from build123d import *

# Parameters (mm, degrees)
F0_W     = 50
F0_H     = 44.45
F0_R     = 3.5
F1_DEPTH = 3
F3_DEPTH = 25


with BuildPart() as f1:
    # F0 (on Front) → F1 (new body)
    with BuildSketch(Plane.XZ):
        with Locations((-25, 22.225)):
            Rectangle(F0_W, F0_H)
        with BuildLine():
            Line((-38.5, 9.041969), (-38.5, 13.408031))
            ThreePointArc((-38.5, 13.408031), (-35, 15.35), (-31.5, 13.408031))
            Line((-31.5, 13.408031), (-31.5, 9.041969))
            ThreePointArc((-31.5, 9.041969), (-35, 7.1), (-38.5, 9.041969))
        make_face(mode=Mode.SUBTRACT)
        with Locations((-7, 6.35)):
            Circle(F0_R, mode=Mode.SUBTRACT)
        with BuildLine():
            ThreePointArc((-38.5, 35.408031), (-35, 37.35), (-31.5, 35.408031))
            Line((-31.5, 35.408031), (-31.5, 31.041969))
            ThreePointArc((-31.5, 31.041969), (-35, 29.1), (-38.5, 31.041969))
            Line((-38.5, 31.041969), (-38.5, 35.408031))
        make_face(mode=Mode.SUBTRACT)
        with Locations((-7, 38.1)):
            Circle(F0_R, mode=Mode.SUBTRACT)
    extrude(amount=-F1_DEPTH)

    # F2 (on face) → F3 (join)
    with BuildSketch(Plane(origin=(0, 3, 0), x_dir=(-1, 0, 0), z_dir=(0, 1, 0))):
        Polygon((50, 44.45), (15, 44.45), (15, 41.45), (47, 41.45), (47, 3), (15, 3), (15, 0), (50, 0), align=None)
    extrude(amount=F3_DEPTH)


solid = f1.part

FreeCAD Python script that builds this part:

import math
import FreeCAD as App
import Part
import Sketcher

V = App.Vector
Q = App.Units.Quantity


def add_polygon(sketch, points):
    """Adds a closed chain of lines whose ends are joined by coincident constraints."""
    first, n = sketch.GeometryCount, len(points)
    for a, b in zip(points, points[1:] + points[:1]):
        sketch.addGeometry(Part.LineSegment(App.Vector(*a, 0), App.Vector(*b, 0)), False)
    for i in range(n):
        sketch.addConstraint(Sketcher.Constraint("Coincident", first + i, 2, first + (i + 1) % n, 1))

doc = App.newDocument("Part")
body = doc.addObject("PartDesign::Body", "Body")

sketch1 = doc.addObject("Sketcher::SketchObject", "Sketch")
body.addObject(sketch1)
sketch1.AttachmentSupport = (doc.XZ_Plane, [""])
sketch1.MapMode = "FlatFace"
add_polygon(sketch1, [(-50, 44.45), (-50, 0), (0, 0), (0, 44.45)])
sketch1.addGeometry(Part.ArcOfCircle(Part.Circle(V(-35, 11.225, 0), V(0, 0, 1), 4.125), math.radians(-148.047257), math.radians(-31.952743)), False)
sketch1.addGeometry(Part.LineSegment(V(-38.5, 9.041969, 0), V(-38.5, 13.408031, 0)), False)
sketch1.addGeometry(Part.ArcOfCircle(Part.Circle(V(-35, 11.225, 0), V(0, 0, 1), 4.125), math.radians(31.952743), math.radians(148.047257)), False)
sketch1.addGeometry(Part.LineSegment(V(-31.5, 13.408031, 0), V(-31.5, 9.041969, 0)), False)
sketch1.addGeometry(Part.Circle(V(-7, 6.35, 0), V(0, 0, 1), 3.5), False)
sketch1.addGeometry(Part.LineSegment(V(-38.5, 31.041969, 0), V(-38.5, 35.408031, 0)), False)
sketch1.addGeometry(Part.ArcOfCircle(Part.Circle(V(-35, 33.225, 0), V(0, 0, 1), 4.125), math.radians(31.952743), math.radians(148.047257)), False)
sketch1.addGeometry(Part.LineSegment(V(-31.5, 35.408031, 0), V(-31.5, 31.041969, 0)), False)
sketch1.addGeometry(Part.ArcOfCircle(Part.Circle(V(-35, 33.225, 0), V(0, 0, 1), 4.125), math.radians(-148.047257), math.radians(-31.952743)), False)
sketch1.addGeometry(Part.Circle(V(-7, 38.1, 0), V(0, 0, 1), 3.5), False)
sketch1.addConstraint(Sketcher.Constraint("Coincident", 4, 1, 5, 1))
sketch1.addConstraint(Sketcher.Constraint("Coincident", 5, 2, 6, 2))
sketch1.addConstraint(Sketcher.Constraint("Coincident", 6, 1, 7, 1))
sketch1.addConstraint(Sketcher.Constraint("Coincident", 7, 2, 4, 2))
sketch1.addConstraint(Sketcher.Constraint("Coincident", 9, 2, 10, 2))
sketch1.addConstraint(Sketcher.Constraint("Coincident", 10, 1, 11, 1))
sketch1.addConstraint(Sketcher.Constraint("Coincident", 11, 2, 12, 2))
sketch1.addConstraint(Sketcher.Constraint("Coincident", 12, 1, 9, 1))
sketch1.addConstraint(Sketcher.Constraint("Vertical", 0))
sketch1.addConstraint(Sketcher.Constraint("Horizontal", 1))
sketch1.addConstraint(Sketcher.Constraint("Vertical", 2))
sketch1.addConstraint(Sketcher.Constraint("Horizontal", 3))
sketch1.addConstraint(Sketcher.Constraint("Vertical", 5))
sketch1.addConstraint(Sketcher.Constraint("Vertical", 7))
sketch1.addConstraint(Sketcher.Constraint("Vertical", 9))
sketch1.addConstraint(Sketcher.Constraint("Vertical", 11))
sketch1.addConstraint(Sketcher.Constraint("Coincident", 1, 2, -1, 1))
sketch1.addConstraint(Sketcher.Constraint("Coincident", 6, 3, 4, 3))
sketch1.addConstraint(Sketcher.Constraint("Coincident", 12, 3, 10, 3))
sketch1.addConstraint(Sketcher.Constraint("Equal", 4, 6))
sketch1.addConstraint(Sketcher.Constraint("Equal", 6, 10))
sketch1.addConstraint(Sketcher.Constraint("Equal", 10, 12))
sketch1.addConstraint(Sketcher.Constraint("Equal", 8, 13))
sketch1.addConstraint(Sketcher.Constraint("Horizontal", 5, 2, 6, 1))
sketch1.addConstraint(Sketcher.Constraint("Horizontal", 9, 2, 10, 1))
sketch1.addConstraint(Sketcher.Constraint("Vertical", 6, 3, 10, 3))
sketch1.addConstraint(Sketcher.Constraint("Vertical", 8, 3, 13, 3))
sketch1.addConstraint(Sketcher.Constraint("Vertical", 5, 2, 9, 2))
sketch1.addConstraint(Sketcher.Constraint("Diameter", 8, Q("7 mm")))
sketch1.addConstraint(Sketcher.Constraint("DistanceX", 1, 1, 1, 2, Q("50 mm")))
sketch1.addConstraint(Sketcher.Constraint("DistanceX", 4, 3, -1, 1, Q("35 mm")))
sketch1.addConstraint(Sketcher.Constraint("DistanceX", 8, 3, -1, 1, Q("7 mm")))
sketch1.addConstraint(Sketcher.Constraint("Radius", 4, Q("4.125 mm")))
sketch1.addConstraint(Sketcher.Constraint("DistanceY", 6, 3, 10, 3, Q("22 mm")))
sketch1.addConstraint(Sketcher.Constraint("DistanceX", 5, 2, 6, 1, Q("7 mm")))
sketch1.addConstraint(Sketcher.Constraint("DistanceY", 0, 2, 0, 1, Q("44.45 mm")))
sketch1.addConstraint(Sketcher.Constraint("DistanceY", -1, 1, 13, 3, Q("38.1 mm")))
sketch1.addConstraint(Sketcher.Constraint("DistanceY", 8, 3, 2, 2, Q("38.1 mm")))
sketch1.addConstraint(Sketcher.Constraint("DistanceY", -1, 1, 4, 3, Q("11.225 mm")))
pad1 = doc.addObject("PartDesign::Pad", "Pad")
body.addObject(pad1)
pad1.Profile = sketch1
pad1.Length = 3
pad1.Reversed = True

sketch2 = doc.addObject("Sketcher::SketchObject", "Sketch001")
body.addObject(sketch2)
sketch2.AttachmentSupport = (doc.XZ_Plane, [""])
sketch2.MapMode = "FlatFace"
sketch2.AttachmentOffset = App.Placement(V(0, 0, -3), App.Rotation())
add_polygon(sketch2, [(-50, 44.45), (-15, 44.45), (-15, 41.45), (-47, 41.45), (-47, 3), (-15, 3), (-15, 0), (-50, 0)])
sketch2.addConstraint(Sketcher.Constraint("Horizontal", 0))
sketch2.addConstraint(Sketcher.Constraint("Vertical", 1))
sketch2.addConstraint(Sketcher.Constraint("Horizontal", 2))
sketch2.addConstraint(Sketcher.Constraint("Vertical", 3))
sketch2.addConstraint(Sketcher.Constraint("Horizontal", 4))
sketch2.addConstraint(Sketcher.Constraint("Vertical", 5))
sketch2.addConstraint(Sketcher.Constraint("Horizontal", 6))
sketch2.addConstraint(Sketcher.Constraint("Vertical", 7))
sketch2.addConstraint(Sketcher.Constraint("PointOnObject", 5, 2, -1))
sketch2.addConstraint(Sketcher.Constraint("Vertical", 1, 2, 4, 2))
sketch2.addConstraint(Sketcher.Constraint("Equal", 1, 5))
sketch2.addConstraint(Sketcher.Constraint("DistanceX", 0, 1, 0, 2, Q("35 mm")))
sketch2.addConstraint(Sketcher.Constraint("DistanceX", 2, 2, 2, 1, Q("32 mm")))
sketch2.addConstraint(Sketcher.Constraint("DistanceY", 1, 2, 1, 1, Q("3 mm")))
sketch2.addConstraint(Sketcher.Constraint("DistanceX", 0, 2, -1, 1, Q("15 mm")))
sketch2.addConstraint(Sketcher.Constraint("DistanceY", 3, 2, 3, 1, Q("38.45 mm")))
pad2 = doc.addObject("PartDesign::Pad", "Pad001")
body.addObject(pad2)
pad2.Profile = sketch2
pad2.Length = 25
pad2.Reversed = True

doc.recompute()
